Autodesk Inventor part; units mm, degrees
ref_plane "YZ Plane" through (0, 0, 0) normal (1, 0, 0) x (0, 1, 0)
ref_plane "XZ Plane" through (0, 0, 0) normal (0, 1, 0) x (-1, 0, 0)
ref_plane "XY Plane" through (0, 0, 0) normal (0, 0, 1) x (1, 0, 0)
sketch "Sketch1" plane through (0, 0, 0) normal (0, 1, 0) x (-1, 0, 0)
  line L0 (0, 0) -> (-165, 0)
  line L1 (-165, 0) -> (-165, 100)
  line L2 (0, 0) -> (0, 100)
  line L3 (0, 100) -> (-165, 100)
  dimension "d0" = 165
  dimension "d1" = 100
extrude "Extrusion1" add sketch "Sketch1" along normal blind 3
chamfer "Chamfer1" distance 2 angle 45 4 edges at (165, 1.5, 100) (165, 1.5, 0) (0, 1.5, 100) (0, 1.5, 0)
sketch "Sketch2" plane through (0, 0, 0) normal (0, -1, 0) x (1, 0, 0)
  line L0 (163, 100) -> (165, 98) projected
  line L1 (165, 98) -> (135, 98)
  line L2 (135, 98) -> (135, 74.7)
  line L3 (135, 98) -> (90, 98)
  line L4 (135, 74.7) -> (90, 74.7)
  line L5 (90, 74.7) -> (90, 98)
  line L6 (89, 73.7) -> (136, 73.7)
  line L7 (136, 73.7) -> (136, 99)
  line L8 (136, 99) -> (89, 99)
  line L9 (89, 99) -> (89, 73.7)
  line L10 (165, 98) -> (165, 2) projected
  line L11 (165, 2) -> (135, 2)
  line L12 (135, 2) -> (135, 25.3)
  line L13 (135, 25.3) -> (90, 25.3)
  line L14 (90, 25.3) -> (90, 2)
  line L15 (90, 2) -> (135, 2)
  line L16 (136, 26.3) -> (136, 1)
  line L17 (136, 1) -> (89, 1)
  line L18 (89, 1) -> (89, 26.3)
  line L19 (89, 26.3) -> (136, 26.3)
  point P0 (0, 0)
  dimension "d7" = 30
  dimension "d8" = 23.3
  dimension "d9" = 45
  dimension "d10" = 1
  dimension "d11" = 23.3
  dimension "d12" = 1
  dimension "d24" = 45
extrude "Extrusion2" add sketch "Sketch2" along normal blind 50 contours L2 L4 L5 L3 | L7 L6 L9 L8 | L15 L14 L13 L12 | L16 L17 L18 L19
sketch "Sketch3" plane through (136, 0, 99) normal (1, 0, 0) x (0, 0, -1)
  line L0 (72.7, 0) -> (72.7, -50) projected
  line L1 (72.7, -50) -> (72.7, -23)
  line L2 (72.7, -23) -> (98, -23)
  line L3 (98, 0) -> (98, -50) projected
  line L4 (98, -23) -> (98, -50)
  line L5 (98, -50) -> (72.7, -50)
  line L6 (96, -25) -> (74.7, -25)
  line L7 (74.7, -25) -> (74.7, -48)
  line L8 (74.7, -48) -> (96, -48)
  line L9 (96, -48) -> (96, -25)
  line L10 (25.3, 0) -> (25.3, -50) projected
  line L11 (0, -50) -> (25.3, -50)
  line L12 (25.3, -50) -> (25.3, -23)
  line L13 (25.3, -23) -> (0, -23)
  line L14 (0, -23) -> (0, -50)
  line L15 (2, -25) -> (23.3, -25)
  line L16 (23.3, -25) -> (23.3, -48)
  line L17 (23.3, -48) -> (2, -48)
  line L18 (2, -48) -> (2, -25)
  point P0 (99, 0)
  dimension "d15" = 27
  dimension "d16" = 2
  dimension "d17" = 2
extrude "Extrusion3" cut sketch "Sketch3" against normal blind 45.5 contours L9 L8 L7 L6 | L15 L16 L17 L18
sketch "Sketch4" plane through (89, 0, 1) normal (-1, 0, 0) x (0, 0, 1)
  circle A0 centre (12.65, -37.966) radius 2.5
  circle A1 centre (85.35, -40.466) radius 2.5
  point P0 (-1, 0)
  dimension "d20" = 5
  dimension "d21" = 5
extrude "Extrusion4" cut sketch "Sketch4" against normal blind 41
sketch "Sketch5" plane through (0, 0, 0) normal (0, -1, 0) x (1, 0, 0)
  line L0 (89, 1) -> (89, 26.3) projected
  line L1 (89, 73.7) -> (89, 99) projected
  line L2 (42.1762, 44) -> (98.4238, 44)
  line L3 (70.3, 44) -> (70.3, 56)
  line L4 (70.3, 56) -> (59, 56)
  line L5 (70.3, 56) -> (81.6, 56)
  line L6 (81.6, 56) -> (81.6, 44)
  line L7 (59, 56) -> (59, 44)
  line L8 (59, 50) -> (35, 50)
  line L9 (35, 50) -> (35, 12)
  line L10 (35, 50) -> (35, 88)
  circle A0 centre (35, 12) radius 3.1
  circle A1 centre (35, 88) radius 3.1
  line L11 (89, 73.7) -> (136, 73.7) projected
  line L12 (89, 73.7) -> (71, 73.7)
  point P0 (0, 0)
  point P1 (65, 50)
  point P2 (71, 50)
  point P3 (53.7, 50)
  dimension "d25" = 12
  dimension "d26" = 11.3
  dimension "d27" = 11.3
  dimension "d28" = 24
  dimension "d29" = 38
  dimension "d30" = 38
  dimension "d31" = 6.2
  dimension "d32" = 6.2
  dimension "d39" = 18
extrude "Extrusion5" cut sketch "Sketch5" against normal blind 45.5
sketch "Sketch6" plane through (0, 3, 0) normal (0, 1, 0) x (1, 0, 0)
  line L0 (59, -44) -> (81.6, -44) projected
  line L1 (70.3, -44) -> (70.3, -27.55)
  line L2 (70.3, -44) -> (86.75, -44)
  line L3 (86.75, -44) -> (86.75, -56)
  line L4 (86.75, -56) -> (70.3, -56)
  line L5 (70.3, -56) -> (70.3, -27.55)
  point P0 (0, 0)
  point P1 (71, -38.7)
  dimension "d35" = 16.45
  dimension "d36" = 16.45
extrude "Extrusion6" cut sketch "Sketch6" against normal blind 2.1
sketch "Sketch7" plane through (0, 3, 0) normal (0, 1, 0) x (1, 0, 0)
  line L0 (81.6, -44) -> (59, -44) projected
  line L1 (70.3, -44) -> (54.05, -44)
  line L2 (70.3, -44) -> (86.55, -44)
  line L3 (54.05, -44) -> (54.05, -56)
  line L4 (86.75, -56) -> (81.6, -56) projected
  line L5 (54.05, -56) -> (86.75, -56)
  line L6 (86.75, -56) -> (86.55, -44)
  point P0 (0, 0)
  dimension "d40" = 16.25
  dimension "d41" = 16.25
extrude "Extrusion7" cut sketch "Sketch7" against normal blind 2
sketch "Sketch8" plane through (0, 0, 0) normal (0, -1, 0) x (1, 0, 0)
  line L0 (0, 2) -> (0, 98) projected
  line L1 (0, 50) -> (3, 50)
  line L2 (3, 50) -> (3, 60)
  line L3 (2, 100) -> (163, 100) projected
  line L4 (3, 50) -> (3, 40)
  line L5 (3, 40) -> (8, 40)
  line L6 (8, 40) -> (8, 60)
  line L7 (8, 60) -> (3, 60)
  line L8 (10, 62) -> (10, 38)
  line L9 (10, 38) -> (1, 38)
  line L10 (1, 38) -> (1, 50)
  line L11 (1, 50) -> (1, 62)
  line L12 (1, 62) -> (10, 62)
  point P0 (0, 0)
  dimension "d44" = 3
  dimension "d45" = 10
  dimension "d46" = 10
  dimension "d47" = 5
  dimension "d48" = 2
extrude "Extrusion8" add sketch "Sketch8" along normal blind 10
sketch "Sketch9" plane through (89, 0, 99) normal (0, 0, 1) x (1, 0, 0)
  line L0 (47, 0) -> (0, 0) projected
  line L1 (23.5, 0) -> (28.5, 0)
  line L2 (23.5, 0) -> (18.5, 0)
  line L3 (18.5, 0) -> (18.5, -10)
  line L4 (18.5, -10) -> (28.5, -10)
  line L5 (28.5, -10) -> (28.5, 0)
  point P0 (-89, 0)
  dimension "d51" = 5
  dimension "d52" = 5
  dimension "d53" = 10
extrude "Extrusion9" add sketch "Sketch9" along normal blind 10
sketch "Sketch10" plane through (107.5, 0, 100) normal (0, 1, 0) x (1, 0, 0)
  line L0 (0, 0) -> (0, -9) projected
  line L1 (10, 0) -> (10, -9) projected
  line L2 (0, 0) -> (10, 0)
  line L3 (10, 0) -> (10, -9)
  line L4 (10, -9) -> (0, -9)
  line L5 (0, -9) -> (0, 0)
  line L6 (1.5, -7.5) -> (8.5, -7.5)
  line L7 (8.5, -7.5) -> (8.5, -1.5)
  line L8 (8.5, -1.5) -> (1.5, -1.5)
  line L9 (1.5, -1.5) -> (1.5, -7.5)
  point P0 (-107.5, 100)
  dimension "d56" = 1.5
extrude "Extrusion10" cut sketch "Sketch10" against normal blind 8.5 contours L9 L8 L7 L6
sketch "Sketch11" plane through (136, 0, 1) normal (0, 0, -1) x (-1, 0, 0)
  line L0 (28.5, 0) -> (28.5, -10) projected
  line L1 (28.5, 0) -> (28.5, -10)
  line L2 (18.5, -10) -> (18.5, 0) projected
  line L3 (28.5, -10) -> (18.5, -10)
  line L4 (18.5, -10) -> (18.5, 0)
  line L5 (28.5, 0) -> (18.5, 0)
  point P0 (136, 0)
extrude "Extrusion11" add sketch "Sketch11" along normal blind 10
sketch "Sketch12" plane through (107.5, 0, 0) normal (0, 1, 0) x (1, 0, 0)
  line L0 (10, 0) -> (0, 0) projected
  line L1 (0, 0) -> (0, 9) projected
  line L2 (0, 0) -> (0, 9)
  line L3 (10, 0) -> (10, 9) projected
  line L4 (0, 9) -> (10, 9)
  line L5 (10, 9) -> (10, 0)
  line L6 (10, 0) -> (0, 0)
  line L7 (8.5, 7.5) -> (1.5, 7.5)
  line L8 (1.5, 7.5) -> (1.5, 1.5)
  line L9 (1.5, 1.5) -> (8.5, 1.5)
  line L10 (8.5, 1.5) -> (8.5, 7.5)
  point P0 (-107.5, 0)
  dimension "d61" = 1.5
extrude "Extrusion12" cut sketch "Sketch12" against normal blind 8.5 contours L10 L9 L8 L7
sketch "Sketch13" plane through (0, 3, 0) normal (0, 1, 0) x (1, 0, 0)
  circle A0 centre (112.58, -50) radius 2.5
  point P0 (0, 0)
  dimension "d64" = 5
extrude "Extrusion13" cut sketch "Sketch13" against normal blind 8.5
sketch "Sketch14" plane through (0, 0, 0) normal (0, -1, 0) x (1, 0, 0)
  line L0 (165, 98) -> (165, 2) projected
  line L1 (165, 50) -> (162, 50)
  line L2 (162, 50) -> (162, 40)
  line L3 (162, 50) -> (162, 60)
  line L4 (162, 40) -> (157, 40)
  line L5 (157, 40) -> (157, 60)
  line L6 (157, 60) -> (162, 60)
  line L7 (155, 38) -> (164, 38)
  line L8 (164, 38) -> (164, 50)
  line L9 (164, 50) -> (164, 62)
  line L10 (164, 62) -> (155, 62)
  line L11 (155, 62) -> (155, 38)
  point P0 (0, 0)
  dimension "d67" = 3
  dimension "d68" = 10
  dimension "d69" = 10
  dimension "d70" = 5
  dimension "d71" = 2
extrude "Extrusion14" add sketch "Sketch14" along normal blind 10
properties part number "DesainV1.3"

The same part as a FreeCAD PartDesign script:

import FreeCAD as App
import Part
import Sketcher
from FreeCAD import Vector
Q = App.Units.Quantity


def edges_at(feature, points):
    """Names of the edges that pass closest to the given points."""
    edges = feature.Shape.Edges
    near = lambda p: min(range(len(edges)), key=lambda i: edges[i].distToShape(Part.Vertex(*p))[0])
    return sorted({f"Edge{near(p) + 1}" for p in points})

doc = App.newDocument("Part")
params = doc.addObject("Spreadsheet::Sheet", "Params")
for row, (alias, value) in enumerate([
    ("sketch1_width", "165 mm"),
    ("sketch1_height", "100 mm"),
    ("pad1_length", "3 mm"),
    ("chamfer_size", "2 mm"),
    ("sketch2_height", "1 mm"),
    ("sketch2_width", "47 mm"),
    ("sketch2_height2", "24.3 mm"),
    ("pad2_length", "50 mm"),
    ("sketch3_width", "23 mm"),
    ("sketch3_height", "21.3 mm"),
    ("pocket1_length", "45.5 mm"),
    ("sketch4_diameter", "5 mm"),
    ("pocket2_length", "41 mm"),
    ("sketch5_diameter", "6.2 mm"),
    ("sketch5_height", "12 mm"),
    ("sketch5_width", "22.6 mm"),
    ("pocket3_length", "45.5 mm"),
    ("sketch6_width", "16.45 mm"),
    ("sketch6_height", "12 mm"),
    ("pocket4_length", "2.1 mm"),
    ("sketch7_height", "12 mm"),
    ("sketch7_width", "32.5 mm"),
    ("sketch7_width2", "32.7 mm"),
    ("pocket5_length", "2 mm"),
    ("sketch8_width", "5 mm"),
    ("sketch8_height", "10 mm"),
    ("pad3_length", "10 mm"),
    ("sketch9_width", "10 mm"),
    ("pad4_length", "10 mm"),
    ("sketch10_width", "7 mm"),
    ("sketch10_height", "6 mm"),
    ("pocket6_length", "8.5 mm"),
    ("sketch11_width", "10 mm"),
    ("pad5_length", "10 mm"),
    ("sketch12_width", "7 mm"),
    ("sketch12_height", "6 mm"),
    ("pocket7_length", "8.5 mm"),
    ("sketch13_diameter", "5 mm"),
    ("pocket8_length", "8.5 mm"),
    ("sketch14_width", "5 mm"),
    ("sketch14_height", "10 mm"),
    ("pad6_length", "10 mm"),
], start=1):
    params.set(f"A{row}", alias)
    params.set(f"B{row}", "=" + value)
    params.setAlias(f"B{row}", alias)

body = doc.addObject("PartDesign::Body", "Body")

# Sketch on XZ plane
sketch1 = body.newObject("Sketcher::SketchObject", "Sketch")
sketch1.AttachmentSupport = (doc.getObject("XZ_Plane"), [""])
sketch1.MapMode = "FlatFace"
sketch1.addGeometry(Part.LineSegment(Vector(165, 0, 0), Vector(0, 0, 0)), False)
sketch1.addGeometry(Part.LineSegment(Vector(0, 0, 0), Vector(0, 100, 0)), False)
sketch1.addGeometry(Part.LineSegment(Vector(0, 100, 0), Vector(165, 100, 0)), False)
sketch1.addGeometry(Part.LineSegment(Vector(165, 100, 0), Vector(165, 0, 0)), False)
sketch1.addConstraint(Sketcher.Constraint("Coincident", 0, 2, 1, 1))
sketch1.addConstraint(Sketcher.Constraint("Coincident", 1, 2, 2, 1))
sketch1.addConstraint(Sketcher.Constraint("Coincident", 2, 2, 3, 1))
sketch1.addConstraint(Sketcher.Constraint("Coincident", 3, 2, 0, 1))
sketch1.addConstraint(Sketcher.Constraint("Horizontal", 0))
sketch1.addConstraint(Sketcher.Constraint("Vertical", 1))
sketch1.addConstraint(Sketcher.Constraint("Horizontal", 2))
sketch1.addConstraint(Sketcher.Constraint("Vertical", 3))
sketch1.addConstraint(Sketcher.Constraint("Coincident", 0, 2, -1, 1))
sketch1.addConstraint(Sketcher.Constraint("DistanceX", 0, 2, 0, 1, Q("165 mm")))
sketch1.addConstraint(Sketcher.Constraint("DistanceY", 1, 1, 1, 2, Q("100 mm")))
sketch1.setExpression("Constraints[9]", "Params.sketch1_width")
sketch1.setExpression("Constraints[10]", "Params.sketch1_height")
pad1 = body.newObject("PartDesign::Pad", "Pad")
pad1.Profile = sketch1
pad1.setExpression("Length", "Params.pad1_length")
pad1.Reversed = True
doc.recompute()

chamfer = body.newObject("PartDesign::Chamfer", "Chamfer")
chamfer.Base = (pad1, edges_at(pad1, [
    (165, 1.5, 100),
    (165, 1.5, 0),
    (0, 1.5, 100),
    (0, 1.5, 0),
]))
chamfer.setExpression("Size", "Params.chamfer_size")

# Sketch on XZ plane
sketch2 = body.newObject("Sketcher::SketchObject", "Sketch001")
sketch2.AttachmentSupport = (doc.getObject("XZ_Plane"), [""])
sketch2.MapMode = "FlatFace"
sketch2.addGeometry(Part.LineSegment(Vector(136, 73.7, 0), Vector(136, 98, 0)), False)
sketch2.addGeometry(Part.LineSegment(Vector(136, 98, 0), Vector(136, 99, 0)), False)
sketch2.addGeometry(Part.LineSegment(Vector(136, 99, 0), Vector(89, 99, 0)), False)
sketch2.addGeometry(Part.LineSegment(Vector(89, 99, 0), Vector(89, 73.7, 0)), False)
sketch2.addGeometry(Part.LineSegment(Vector(89, 73.7, 0), Vector(136, 73.7, 0)), False)
sketch2.addGeometry(Part.LineSegment(Vector(136, 1, 0), Vector(136, 2, 0)), False)
sketch2.addGeometry(Part.LineSegment(Vector(136, 2, 0), Vector(136, 26.3, 0)), False)
sketch2.addGeometry(Part.LineSegment(Vector(136, 26.3, 0), Vector(89, 26.3, 0)), False)
sketch2.addGeometry(Part.LineSegment(Vector(89, 26.3, 0), Vector(89, 1, 0)), False)
sketch2.addGeometry(Part.LineSegment(Vector(89, 1, 0), Vector(136, 1, 0)), False)
sketch2.addConstraint(Sketcher.Constraint("Coincident", 0, 2, 1, 1))
sketch2.addConstraint(Sketcher.Constraint("Coincident", 1, 2, 2, 1))
sketch2.addConstraint(Sketcher.Constraint("Coincident", 2, 2, 3, 1))
sketch2.addConstraint(Sketcher.Constraint("Coincident", 3, 2, 4, 1))
sketch2.addConstraint(Sketcher.Constraint("Coincident", 4, 2, 0, 1))
sketch2.addConstraint(Sketcher.Constraint("Coincident", 5, 2, 6, 1))
sketch2.addConstraint(Sketcher.Constraint("Coincident", 6, 2, 7, 1))
sketch2.addConstraint(Sketcher.Constraint("Coincident", 7, 2, 8, 1))
sketch2.addConstraint(Sketcher.Constraint("Coincident", 8, 2, 9, 1))
sketch2.addConstraint(Sketcher.Constraint("Coincident", 9, 2, 5, 1))
sketch2.addConstraint(Sketcher.Constraint("Vertical", 0))
sketch2.addConstraint(Sketcher.Constraint("Vertical", 1))
sketch2.addConstraint(Sketcher.Constraint("Horizontal", 2))
sketch2.addConstraint(Sketcher.Constraint("Vertical", 3))
sketch2.addConstraint(Sketcher.Constraint("Horizontal", 4))
sketch2.addConstraint(Sketcher.Constraint("Vertical", 5))
sketch2.addConstraint(Sketcher.Constraint("Vertical", 6))
sketch2.addConstraint(Sketcher.Constraint("Horizontal", 7))
sketch2.addConstraint(Sketcher.Constraint("Vertical", 8))
sketch2.addConstraint(Sketcher.Constraint("Horizontal", 9))
sketch2.addConstraint(Sketcher.Constraint("Vertical", 4, 2, 5, 2))
sketch2.addConstraint(Sketcher.Constraint("Vertical", 3, 2, 7, 2))
sketch2.addConstraint(Sketcher.Constraint("Equal", 1, 5))
sketch2.addConstraint(Sketcher.Constraint("Equal", 0, 6))
sketch2.addConstraint(Sketcher.Constraint("DistanceY", 1, 1, 1, 2, Q("1 mm")))
sketch2.addConstraint(Sketcher.Constraint("DistanceY", -1, 1, 8, 2, Q("1 mm")))
sketch2.addConstraint(Sketcher.Constraint("DistanceX", 2, 2, 2, 1, Q("47 mm")))
sketch2.addConstraint(Sketcher.Constraint("DistanceY", 0, 1, 0, 2, Q("24.3 mm")))
sketch2.addConstraint(Sketcher.Constraint("DistanceX", -1, 1, 0, 2, Q("136 mm")))
sketch2.addConstraint(Sketcher.Constraint("DistanceY", -1, 1, 0, 2, Q("98 mm")))
sketch2.setExpression("Constraints[24]", "Params.sketch2_height")
sketch2.setExpression("Constraints[26]", "Params.sketch2_width")
sketch2.setExpression("Constraints[27]", "Params.sketch2_height2")
pad2 = body.newObject("PartDesign::Pad", "Pad001")
pad2.Profile = sketch2
pad2.setExpression("Length", "Params.pad2_length")

# Sketch on YZ plane
sketch3 = body.newObject("Sketcher::SketchObject", "Sketch002")
sketch3.AttachmentSupport = (doc.getObject("YZ_Plane"), [""])
sketch3.MapMode = "FlatFace"
sketch3.AttachmentOffset = App.Placement(Vector(0, 0, 136), App.Rotation())
sketch3.addGeometry(Part.LineSegment(Vector(-48, 3, 0), Vector(-25, 3, 0)), False)
sketch3.addGeometry(Part.LineSegment(Vector(-25, 3, 0), Vector(-25, 24, 0)), False)
sketch3.addGeometry(Part.LineSegment(Vector(-25, 24, 0), Vector(-48, 24, 0)), False)
sketch3.addGeometry(Part.LineSegment(Vector(-48, 24, 0), Vector(-48, 3, 0)), False)
sketch3.addGeometry(Part.LineSegment(Vector(-25, 76, 0), Vector(-25, 97, 0)), False)
sketch3.addGeometry(Part.LineSegment(Vector(-25, 97, 0), Vector(-48, 97, 0)), False)
sketch3.addGeometry(Part.LineSegment(Vector(-48, 97, 0), Vector(-48, 76, 0)), False)
sketch3.addGeometry(Part.LineSegment(Vector(-48, 76, 0), Vector(-25, 76, 0)), False)
sketch3.addConstraint(Sketcher.Constraint("Coincident", 0, 2, 1, 1))
sketch3.addConstraint(Sketcher.Constraint("Coincident", 1, 2, 2, 1))
sketch3.addConstraint(Sketcher.Constraint("Coincident", 2, 2, 3, 1))
sketch3.addConstraint(Sketcher.Constraint("Coincident", 3, 2, 0, 1))
sketch3.addConstraint(Sketcher.Constraint("Coincident", 4, 2, 5, 1))
sketch3.addConstraint(Sketcher.Constraint("Coincident", 5, 2, 6, 1))
sketch3.addConstraint(Sketcher.Constraint("Coincident", 6, 2, 7, 1))
sketch3.addConstraint(Sketcher.Constraint("Coincident", 7, 2, 4, 1))
sketch3.addConstraint(Sketcher.Constraint("Horizontal", 0))
sketch3.addConstraint(Sketcher.Constraint("Vertical", 1))
sketch3.addConstraint(Sketcher.Constraint("Horizontal", 2))
sketch3.addConstraint(Sketcher.Constraint("Vertical", 3))
sketch3.addConstraint(Sketcher.Constraint("Vertical", 4))
sketch3.addConstraint(Sketcher.Constraint("Horizontal", 5))
sketch3.addConstraint(Sketcher.Constraint("Vertical", 6))
sketch3.addConstraint(Sketcher.Constraint("Horizontal", 7))
sketch3.addConstraint(Sketcher.Constraint("Vertical", 1, 2, 4, 2))
sketch3.addConstraint(Sketcher.Constraint("Vertical", 3, 2, 5, 2))
sketch3.addConstraint(Sketcher.Constraint("Equal", 3, 4))
sketch3.addConstraint(Sketcher.Constraint("DistanceX", 0, 1, 0, 2, Q("23 mm")))
sketch3.addConstraint(Sketcher.Constraint("DistanceY", 1, 1, 1, 2, Q("21.3 mm")))
sketch3.addConstraint(Sketcher.Constraint("DistanceX", 0, 2, -1, 1, Q("25 mm")))
sketch3.addConstraint(Sketcher.Constraint("DistanceY", -1, 1, 0, 2, Q("3 mm")))
sketch3.addConstraint(Sketcher.Constraint("DistanceY", -1, 1, 4, 2, Q("97 mm")))
sketch3.setExpression("Constraints[19]", "Params.sketch3_width")
sketch3.setExpression("Constraints[20]", "Params.sketch3_height")
pocket1 = body.newObject("PartDesign::Pocket", "Pocket")
pocket1.Profile = sketch3
pocket1.setExpression("Length", "Params.pocket1_length")

# Sketch on YZ plane
sketch4 = body.newObject("Sketcher::SketchObject", "Sketch003")
sketch4.AttachmentSupport = (doc.getObject("YZ_Plane"), [""])
sketch4.MapMode = "FlatFace"
sketch4.AttachmentOffset = App.Placement(Vector(0, 0, 89), App.Rotation())
sketch4.addGeometry(Part.Circle(Vector(-38, 13.7, 0), Vector(0, 0, 1), 2.5), False)
sketch4.addGeometry(Part.Circle(Vector(-40.5, 86.3, 0), Vector(0, 0, 1), 2.5), False)
sketch4.addConstraint(Sketcher.Constraint("Equal", 0, 1))
sketch4.addConstraint(Sketcher.Constraint("Diameter", 0, Q("5 mm")))
sketch4.addConstraint(Sketcher.Constraint("DistanceX", 1, 3, 0, 3, Q("2.5 mm")))
sketch4.addConstraint(Sketcher.Constraint("DistanceY", 0, 3, 1, 3, Q("72.7 mm")))
sketch4.addConstraint(Sketcher.Constraint("DistanceY", -1, 1, 0, 3, Q("13.65 mm")))
sketch4.addConstraint(Sketcher.Constraint("DistanceX", 0, 3, -1, 1, Q("37.966 mm")))
sketch4.setExpression("Constraints[1]", "Params.sketch4_diameter")
pocket2 = body.newObject("PartDesign::Pocket", "Pocket001")
pocket2.Profile = sketch4
pocket2.setExpression("Length", "Params.pocket2_length")
pocket2.Reversed = True

# Sketch on XZ plane
sketch5 = body.newObject("Sketcher::SketchObject", "Sketch004")
sketch5.AttachmentSupport = (doc.getObject("XZ_Plane"), [""])
sketch5.MapMode = "FlatFace"
sketch5.addGeometry(Part.LineSegment(Vector(59, 44, 0), Vector(81.6, 44, 0)), False)
sketch5.addGeometry(Part.LineSegment(Vector(81.6, 44, 0), Vector(81.6, 56, 0)), False)
sketch5.addGeometry(Part.LineSegment(Vector(81.6, 56, 0), Vector(59, 56, 0)), False)
sketch5.addGeometry(Part.LineSegment(Vector(59, 56, 0), Vector(59, 44, 0)), False)
sketch5.addGeometry(Part.Circle(Vector(35, 12, 0), Vector(0, 0, 1), 3.1), False)
sketch5.addGeometry(Part.Circle(Vector(35, 88, 0), Vector(0, 0, 1), 3.1), False)
sketch5.addConstraint(Sketcher.Constraint("Coincident", 0, 2, 1, 1))
sketch5.addConstraint(Sketcher.Constraint("Coincident", 1, 2, 2, 1))
sketch5.addConstraint(Sketcher.Constraint("Coincident", 2, 2, 3, 1))
sketch5.addConstraint(Sketcher.Constraint("Coincident", 3, 2, 0, 1))
sketch5.addConstraint(Sketcher.Constraint("Horizontal", 0))
sketch5.addConstraint(Sketcher.Constraint("Vertical", 1))
sketch5.addConstraint(Sketcher.Constraint("Horizontal", 2))
sketch5.addConstraint(Sketcher.Constraint("Vertical", 3))
sketch5.addConstraint(Sketcher.Constraint("Equal", 4, 5))
sketch5.addConstraint(Sketcher.Constraint("Vertical", 4, 3, 5, 3))
sketch5.addConstraint(Sketcher.Constraint("Diameter", 4, Q("6.2 mm")))
sketch5.addConstraint(Sketcher.Constraint("DistanceY", 1, 1, 1, 2, Q("12 mm")))
sketch5.addConstraint(Sketcher.Constraint("DistanceY", -1, 1, 4, 3, Q("12 mm")))
sketch5.addConstraint(Sketcher.Constraint("DistanceX", 5, 3, 2, 2, Q("24 mm")))
sketch5.addConstraint(Sketcher.Constraint("DistanceX", 0, 1, 0, 2, Q("22.6 mm")))
sketch5.addConstraint(Sketcher.Constraint("DistanceX", -1, 1, 4, 3, Q("35 mm")))
sketch5.addConstraint(Sketcher.Constraint("DistanceY", -1, 1, 5, 3, Q("88 mm")))
sketch5.addConstraint(Sketcher.Constraint("DistanceY", -1, 1, 0, 2, Q("44 mm")))
sketch5.setExpression("Constraints[10]", "Params.sketch5_diameter")
sketch5.setExpression("Constraints[11]", "Params.sketch5_height")
sketch5.setExpression("Constraints[14]", "Params.sketch5_width")
pocket3 = body.newObject("PartDesign::Pocket", "Pocket002")
pocket3.Profile = sketch5
pocket3.setExpression("Length", "Params.pocket3_length")

# Sketch on XZ plane
sketch6 = body.newObject("Sketcher::SketchObject", "Sketch005")
sketch6.AttachmentSupport = (doc.getObject("XZ_Plane"), [""])
sketch6.MapMode = "FlatFace"
sketch6.AttachmentOffset = App.Placement(Vector(0, 0, -3), App.Rotation())
sketch6.addGeometry(Part.LineSegment(Vector(87, 44, 0), Vector(70, 44, 0)), False)
sketch6.addGeometry(Part.LineSegment(Vector(70, 44, 0), Vector(70, 56, 0)), False)
sketch6.addGeometry(Part.LineSegment(Vector(70, 56, 0), Vector(87, 56, 0)), False)
sketch6.addGeometry(Part.LineSegment(Vector(87, 56, 0), Vector(87, 44, 0)), False)
sketch6.addConstraint(Sketcher.Constraint("Coincident", 0, 2, 1, 1))
sketch6.addConstraint(Sketcher.Constraint("Coincident", 1, 2, 2, 1))
sketch6.addConstraint(Sketcher.Constraint("Coincident", 2, 2, 3, 1))
sketch6.addConstraint(Sketcher.Constraint("Coincident", 3, 2, 0, 1))
sketch6.addConstraint(Sketcher.Constraint("Horizontal", 0))
sketch6.addConstraint(Sketcher.Constraint("Vertical", 1))
sketch6.addConstraint(Sketcher.Constraint("Horizontal", 2))
sketch6.addConstraint(Sketcher.Constraint("Vertical", 3))
sketch6.addConstraint(Sketcher.Constraint("DistanceX", 0, 2, 0, 1, Q("16.45 mm")))
sketch6.addConstraint(Sketcher.Constraint("DistanceY", 1, 1, 1, 2, Q("12 mm")))
sketch6.addConstraint(Sketcher.Constraint("DistanceY", -1, 1, 0, 2, Q("44 mm")))
sketch6.addConstraint(Sketcher.Constraint("DistanceX", -1, 1, 0, 2, Q("70.3 mm")))
sketch6.setExpression("Constraints[8]", "Params.sketch6_width")
sketch6.setExpression("Constraints[9]", "Params.sketch6_height")
pocket4 = body.newObject("PartDesign::Pocket", "Pocket003")
pocket4.Profile = sketch6
pocket4.setExpression("Length", "Params.pocket4_length")
pocket4.Reversed = True

# Sketch on XZ plane
sketch7 = body.newObject("Sketcher::SketchObject", "Sketch006")
sketch7.AttachmentSupport = (doc.getObject("XZ_Plane"), [""])
sketch7.MapMode = "FlatFace"
sketch7.AttachmentOffset = App.Placement(Vector(0, 0, -3), App.Rotation())
sketch7.addGeometry(Part.LineSegment(Vector(87, 44, 0), Vector(54, 44, 0)), False)
sketch7.addGeometry(Part.LineSegment(Vector(54, 44, 0), Vector(54, 56, 0)), False)
sketch7.addGeometry(Part.LineSegment(Vector(54, 56, 0), Vector(87, 56, 0)), False)
sketch7.addGeometry(Part.LineSegment(Vector(87, 56, 0), Vector(87, 44, 0)), False)
sketch7.addConstraint(Sketcher.Constraint("Coincident", 0, 2, 1, 1))
sketch7.addConstraint(Sketcher.Constraint("Coincident", 1, 2, 2, 1))
sketch7.addConstraint(Sketcher.Constraint("Coincident", 2, 2, 3, 1))
sketch7.addConstraint(Sketcher.Constraint("Coincident", 3, 2, 0, 1))
sketch7.addConstraint(Sketcher.Constraint("Horizontal", 0))
sketch7.addConstraint(Sketcher.Constraint("Vertical", 1))
sketch7.addConstraint(Sketcher.Constraint("Horizontal", 2))
sketch7.addConstraint(Sketcher.Constraint("DistanceY", 1, 1, 1, 2, Q("12 mm")))
sketch7.addConstraint(Sketcher.Constraint("DistanceX", 0, 2, 0, 1, Q("32.5 mm")))
sketch7.addConstraint(Sketcher.Constraint("DistanceX", 2, 1, 2, 2, Q("32.7 mm")))
sketch7.addConstraint(Sketcher.Constraint("DistanceY", -1, 1, 0, 2, Q("44 mm")))
sketch7.addConstraint(Sketcher.Constraint("DistanceX", -1, 1, 0, 2, Q("54.05 mm")))
sketch7.setExpression("Constraints[7]", "Params.sketch7_height")
sketch7.setExpression("Constraints[8]", "Params.sketch7_width")
sketch7.setExpression("Constraints[9]", "Params.sketch7_width2")
pocket5 = body.newObject("PartDesign::Pocket", "Pocket004")
pocket5.Profile = sketch7
pocket5.setExpression("Length", "Params.pocket5_length")
pocket5.Reversed = True

# Sketch on XZ plane
sketch8 = body.newObject("Sketcher::SketchObject", "Sketch007")
sketch8.AttachmentSupport = (doc.getObject("XZ_Plane"), [""])
sketch8.MapMode = "FlatFace"
sketch8.addGeometry(Part.LineSegment(Vector(1, 62, 0), Vector(1, 50, 0)), False)
sketch8.addGeometry(Part.LineSegment(Vector(1, 50, 0), Vector(1, 38, 0)), False)
sketch8.addGeometry(Part.LineSegment(Vector(1, 38, 0), Vector(10, 38, 0)), False)
sketch8.addGeometry(Part.LineSegment(Vector(10, 38, 0), Vector(10, 62, 0)), False)
sketch8.addGeometry(Part.LineSegment(Vector(10, 62, 0), Vector(1, 62, 0)), False)
sketch8.addGeometry(Part.LineSegment(Vector(3, 40, 0), Vector(3, 50, 0)), False)
sketch8.addGeometry(Part.LineSegment(Vector(3, 50, 0), Vector(3, 60, 0)), False)
sketch8.addGeometry(Part.LineSegment(Vector(3, 60, 0), Vector(8, 60, 0)), False)
sketch8.addGeometry(Part.LineSegment(Vector(8, 60, 0), Vector(8, 40, 0)), False)
sketch8.addGeometry(Part.LineSegment(Vector(8, 40, 0), Vector(3, 40, 0)), False)
sketch8.addConstraint(Sketcher.Constraint("Coincident", 0, 2, 1, 1))
sketch8.addConstraint(Sketcher.Constraint("Coincident", 1, 2, 2, 1))
sketch8.addConstraint(Sketcher.Constraint("Coincident", 2, 2, 3, 1))
sketch8.addConstraint(Sketcher.Constraint("Coincident", 3, 2, 4, 1))
sketch8.addConstraint(Sketcher.Constraint("Coincident", 4, 2, 0, 1))
sketch8.addConstraint(Sketcher.Constraint("Coincident", 5, 2, 6, 1))
sketch8.addConstraint(Sketcher.Constraint("Coincident", 6, 2, 7, 1))
sketch8.addConstraint(Sketcher.Constraint("Coincident", 7, 2, 8, 1))
sketch8.addConstraint(Sketcher.Constraint("Coincident", 8, 2, 9, 1))
sketch8.addConstraint(Sketcher.Constraint("Coincident", 9, 2, 5, 1))
sketch8.addConstraint(Sketcher.Constraint("Vertical", 0))
sketch8.addConstraint(Sketcher.Constraint("Vertical", 1))
sketch8.addConstraint(Sketcher.Constraint("Horizontal", 2))
sketch8.addConstraint(Sketcher.Constraint("Vertical", 3))
sketch8.addConstraint(Sketcher.Constraint("Horizontal", 4))
sketch8.addConstraint(Sketcher.Constraint("Vertical", 5))
sketch8.addConstraint(Sketcher.Constraint("Vertical", 6))
sketch8.addConstraint(Sketcher.Constraint("Horizontal", 7))
sketch8.addConstraint(Sketcher.Constraint("Vertical", 8))
sketch8.addConstraint(Sketcher.Constraint("Horizontal", 9))
sketch8.addConstraint(Sketcher.Constraint("Horizontal", 0, 2, 5, 2))
sketch8.addConstraint(Sketcher.Constraint("Equal", 0, 1))
sketch8.addConstraint(Sketcher.Constraint("Equal", 5, 6))
sketch8.addConstraint(Sketcher.Constraint("DistanceX", 7, 1, 7, 2, Q("5 mm")))
sketch8.addConstraint(Sketcher.Constraint("DistanceY", 5, 1, 5, 2, Q("10 mm")))
sketch8.addConstraint(Sketcher.Constraint("DistanceX", -1, 1, 2, 2, Q("10 mm")))
sketch8.addConstraint(Sketcher.Constraint("DistanceX", -1, 1, 5, 2, Q("3 mm")))
sketch8.addConstraint(Sketcher.Constraint("DistanceX", 0, 2, 5, 2, Q("2 mm")))
sketch8.addConstraint(Sketcher.Constraint("DistanceY", 6, 2, 4, 2, Q("2 mm")))
sketch8.addConstraint(Sketcher.Constraint("DistanceY", -1, 1, 0, 2, Q("50 mm")))
sketch8.setExpression("Constraints[23]", "Params.sketch8_width")
sketch8.setExpression("Constraints[24]", "Params.sketch8_height")
pad3 = body.newObject("PartDesign::Pad", "Pad002")
pad3.Profile = sketch8
pad3.setExpression("Length", "Params.pad3_length")

# Sketch on XY plane
sketch9 = body.newObject("Sketcher::SketchObject", "Sketch008")
sketch9.AttachmentSupport = (doc.getObject("XY_Plane"), [""])
sketch9.MapMode = "FlatFace"
sketch9.AttachmentOffset = App.Placement(Vector(0, 0, 99), App.Rotation())
sketch9.addGeometry(Part.LineSegment(Vector(118, -10, 0), Vector(118, 0, 0)), False)
sketch9.addGeometry(Part.LineSegment(Vector(118, 0, 0), Vector(108, 0, 0)), False)
sketch9.addGeometry(Part.LineSegment(Vector(108, 0, 0), Vector(108, -10, 0)), False)
sketch9.addGeometry(Part.LineSegment(Vector(108, -10, 0), Vector(118, -10, 0)), False)
sketch9.addConstraint(Sketcher.Constraint("Coincident", 0, 2, 1, 1))
sketch9.addConstraint(Sketcher.Constraint("Coincident", 1, 2, 2, 1))
sketch9.addConstraint(Sketcher.Constraint("Coincident", 2, 2, 3, 1))
sketch9.addConstraint(Sketcher.Constraint("Coincident", 3, 2, 0, 1))
sketch9.addConstraint(Sketcher.Constraint("Vertical", 0))
sketch9.addConstraint(Sketcher.Constraint("Horizontal", 1))
sketch9.addConstraint(Sketcher.Constraint("Vertical", 2))
sketch9.addConstraint(Sketcher.Constraint("Horizontal", 3))
sketch9.addConstraint(Sketcher.Constraint("PointOnObject", 0, 2, -1))
sketch9.addConstraint(Sketcher.Constraint("Equal", 3, 0))
sketch9.addConstraint(Sketcher.Constraint("DistanceX", 1, 2, 1, 1, Q("10 mm")))
sketch9.addConstraint(Sketcher.Constraint("DistanceX", -1, 1, 0, 2, Q("117.5 mm")))
sketch9.setExpression("Constraints[10]", "Params.sketch9_width")
pad4 = body.newObject("PartDesign::Pad", "Pad003")
pad4.Profile = sketch9
pad4.setExpression("Length", "Params.pad4_length")

# Sketch on XZ plane
sketch10 = body.newObject("Sketcher::SketchObject", "Sketch009")
sketch10.AttachmentSupport = (doc.getObject("XZ_Plane"), [""])
sketch10.MapMode = "FlatFace"
sketch10.addGeometry(Part.LineSegment(Vector(109, 102, 0), Vector(109, 108, 0)), False)
sketch10.addGeometry(Part.LineSegment(Vector(109, 108, 0), Vector(116, 108, 0)), False)
sketch10.addGeometry(Part.LineSegment(Vector(116, 108, 0), Vector(116, 102, 0)), False)
sketch10.addGeometry(Part.LineSegment(Vector(116, 102, 0), Vector(109, 102, 0)), False)
sketch10.addConstraint(Sketcher.Constraint("Coincident", 0, 2, 1, 1))
sketch10.addConstraint(Sketcher.Constraint("Coincident", 1, 2, 2, 1))
sketch10.addConstraint(Sketcher.Constraint("Coincident", 2, 2, 3, 1))
sketch10.addConstraint(Sketcher.Constraint("Coincident", 3, 2, 0, 1))
sketch10.addConstraint(Sketcher.Constraint("Vertical", 0))
sketch10.addConstraint(Sketcher.Constraint("Horizontal", 1))
sketch10.addConstraint(Sketcher.Constraint("Vertical", 2))
sketch10.addConstraint(Sketcher.Constraint("Horizontal", 3))
sketch10.addConstraint(Sketcher.Constraint("DistanceX", 1, 1, 1, 2, Q("7 mm")))
sketch10.addConstraint(Sketcher.Constraint("DistanceY", 0, 1, 0, 2, Q("6 mm")))
sketch10.addConstraint(Sketcher.Constraint("DistanceX", -1, 1, 0, 2, Q("109 mm")))
sketch10.addConstraint(Sketcher.Constraint("DistanceY", -1, 1, 0, 2, Q("107.5 mm")))
sketch10.setExpression("Constraints[8]", "Params.sketch10_width")
sketch10.setExpression("Constraints[9]", "Params.sketch10_height")
pocket6 = body.newObject("PartDesign::Pocket", "Pocket005")
pocket6.Profile = sketch10
pocket6.setExpression("Length", "Params.pocket6_length")
pocket6.Reversed = True

# Sketch on XY plane
sketch11 = body.newObject("Sketcher::SketchObject", "Sketch010")
sketch11.AttachmentSupport = (doc.getObject("XY_Plane"), [""])
sketch11.MapMode = "FlatFace"
sketch11.AttachmentOffset = App.Placement(Vector(0, 0, 1), App.Rotation())
sketch11.addGeometry(Part.LineSegment(Vector(108, -10, 0), Vector(108, 0, 0)), False)
sketch11.addGeometry(Part.LineSegment(Vector(108, 0, 0), Vector(118, 0, 0)), False)
sketch11.addGeometry(Part.LineSegment(Vector(118, 0, 0), Vector(118, -10, 0)), False)
sketch11.addGeometry(Part.LineSegment(Vector(118, -10, 0), Vector(108, -10, 0)), False)
sketch11.addConstraint(Sketcher.Constraint("Coincident", 0, 2, 1, 1))
sketch11.addConstraint(Sketcher.Constraint("Coincident", 1, 2, 2, 1))
sketch11.addConstraint(Sketcher.Constraint("Coincident", 2, 2, 3, 1))
sketch11.addConstraint(Sketcher.Constraint("Coincident", 3, 2, 0, 1))
sketch11.addConstraint(Sketcher.Constraint("Vertical", 0))
sketch11.addConstraint(Sketcher.Constraint("Horizontal", 1))
sketch11.addConstraint(Sketcher.Constraint("Vertical", 2))
sketch11.addConstraint(Sketcher.Constraint("Horizontal", 3))
sketch11.addConstraint(Sketcher.Constraint("PointOnObject", 0, 2, -1))
sketch11.addConstraint(Sketcher.Constraint("Equal", 3, 0))
sketch11.addConstraint(Sketcher.Constraint("DistanceX", 1, 1, 1, 2, Q("10 mm")))
sketch11.addConstraint(Sketcher.Constraint("DistanceX", -1, 1, 0, 2, Q("107.5 mm")))
sketch11.setExpression("Constraints[10]", "Params.sketch11_width")
pad5 = body.newObject("PartDesign::Pad", "Pad004")
pad5.Profile = sketch11
pad5.setExpression("Length", "Params.pad5_length")
pad5.Reversed = True

# Sketch on XZ plane
sketch12 = body.newObject("Sketcher::SketchObject", "Sketch011")
sketch12.AttachmentSupport = (doc.getObject("XZ_Plane"), [""])
sketch12.MapMode = "FlatFace"
sketch12.addGeometry(Part.LineSegment(Vector(116, -2, 0), Vector(116, -8, 0)), False)
sketch12.addGeometry(Part.LineSegment(Vector(116, -8, 0), Vector(109, -8, 0)), False)
sketch12.addGeometry(Part.LineSegment(Vector(109, -8, 0), Vector(109, -2, 0)), False)
sketch12.addGeometry(Part.LineSegment(Vector(109, -2, 0), Vector(116, -2, 0)), False)
sketch12.addConstraint(Sketcher.Constraint("Coincident", 0, 2, 1, 1))
sketch12.addConstraint(Sketcher.Constraint("Coincident", 1, 2, 2, 1))
sketch12.addConstraint(Sketcher.Constraint("Coincident", 2, 2, 3, 1))
sketch12.addConstraint(Sketcher.Constraint("Coincident", 3, 2, 0, 1))
sketch12.addConstraint(Sketcher.Constraint("Vertical", 0))
sketch12.addConstraint(Sketcher.Constraint("Horizontal", 1))
sketch12.addConstraint(Sketcher.Constraint("Vertical", 2))
sketch12.addConstraint(Sketcher.Constraint("Horizontal", 3))
sketch12.addConstraint(Sketcher.Constraint("DistanceY", 2, 2, -1, 1, Q("1.5 mm")))
sketch12.addConstraint(Sketcher.Constraint("DistanceX", 1, 2, 1, 1, Q("7 mm")))
sketch12.addConstraint(Sketcher.Constraint("DistanceY", 0, 2, 0, 1, Q("6 mm")))
sketch12.addConstraint(Sketcher.Constraint("DistanceX", -1, 1, 0, 2, Q("116 mm")))
sketch12.setExpression("Constraints[9]", "Params.sketch12_width")
sketch12.setExpression("Constraints[10]", "Params.sketch12_height")
pocket7 = body.newObject("PartDesign::Pocket", "Pocket006")
pocket7.Profile = sketch12
pocket7.setExpression("Length", "Params.pocket7_length")
pocket7.Reversed = True

# Sketch on XZ plane
sketch13 = body.newObject("Sketcher::SketchObject", "Sketch012")
sketch13.AttachmentSupport = (doc.getObject("XZ_Plane"), [""])
sketch13.MapMode = "FlatFace"
sketch13.AttachmentOffset = App.Placement(Vector(0, 0, -3), App.Rotation())
sketch13.addGeometry(Part.Circle(Vector(112.6, 50, 0), Vector(0, 0, 1), 2.5), False)
sketch13.addConstraint(Sketcher.Constraint("Diameter", 0, Q("5 mm")))
sketch13.addConstraint(Sketcher.Constraint("DistanceY", -1, 1, 0, 3, Q("50 mm")))
sketch13.addConstraint(Sketcher.Constraint("DistanceX", -1, 1, 0, 3, Q("112.58 mm")))
sketch13.setExpression("Constraints[0]", "Params.sketch13_diameter")
pocket8 = body.newObject("PartDesign::Pocket", "Pocket007")
pocket8.Profile = sketch13
pocket8.setExpression("Length", "Params.pocket8_length")
pocket8.Reversed = True

# Sketch on XZ plane
sketch14 = body.newObject("Sketcher::SketchObject", "Sketch013")
sketch14.AttachmentSupport = (doc.getObject("XZ_Plane"), [""])
sketch14.MapMode = "FlatFace"
sketch14.addGeometry(Part.LineSegment(Vector(164, 38, 0), Vector(164, 50, 0)), False)
sketch14.addGeometry(Part.LineSegment(Vector(164, 50, 0), Vector(164, 62, 0)), False)
sketch14.addGeometry(Part.LineSegment(Vector(164, 62, 0), Vector(155, 62, 0)), False)
sketch14.addGeometry(Part.LineSegment(Vector(155, 62, 0), Vector(155, 38, 0)), False)
sketch14.addGeometry(Part.LineSegment(Vector(155, 38, 0), Vector(164, 38, 0)), False)
sketch14.addGeometry(Part.LineSegment(Vector(162, 60, 0), Vector(162, 50, 0)), False)
sketch14.addGeometry(Part.LineSegment(Vector(162, 50, 0), Vector(162, 40, 0)), False)
sketch14.addGeometry(Part.LineSegment(Vector(162, 40, 0), Vector(157, 40, 0)), False)
sketch14.addGeometry(Part.LineSegment(Vector(157, 40, 0), Vector(157, 60, 0)), False)
sketch14.addGeometry(Part.LineSegment(Vector(157, 60, 0), Vector(162, 60, 0)), False)
sketch14.addConstraint(Sketcher.Constraint("Coincident", 0, 2, 1, 1))
sketch14.addConstraint(Sketcher.Constraint("Coincident", 1, 2, 2, 1))
sketch14.addConstraint(Sketcher.Constraint("Coincident", 2, 2, 3, 1))
sketch14.addConstraint(Sketcher.Constraint("Coincident", 3, 2, 4, 1))
sketch14.addConstraint(Sketcher.Constraint("Coincident", 4, 2, 0, 1))
sketch14.addConstraint(Sketcher.Constraint("Coincident", 5, 2, 6, 1))
sketch14.addConstraint(Sketcher.Constraint("Coincident", 6, 2, 7, 1))
sketch14.addConstraint(Sketcher.Constraint("Coincident", 7, 2, 8, 1))
sketch14.addConstraint(Sketcher.Constraint("Coincident", 8, 2, 9, 1))
sketch14.addConstraint(Sketcher.Constraint("Coincident", 9, 2, 5, 1))
sketch14.addConstraint(Sketcher.Constraint("Vertical", 0))
sketch14.addConstraint(Sketcher.Constraint("Vertical", 1))
sketch14.addConstraint(Sketcher.Constraint("Horizontal", 2))
sketch14.addConstraint(Sketcher.Constraint("Vertical", 3))
sketch14.addConstraint(Sketcher.Constraint("Horizontal", 4))
sketch14.addConstraint(Sketcher.Constraint("Vertical", 5))
sketch14.addConstraint(Sketcher.Constraint("Vertical", 6))
sketch14.addConstraint(Sketcher.Constraint("Horizontal", 7))
sketch14.addConstraint(Sketcher.Constraint("Vertical", 8))
sketch14.addConstraint(Sketcher.Constraint("Horizontal", 9))
sketch14.addConstraint(Sketcher.Constraint("Horizontal", 0, 2, 5, 2))
sketch14.addConstraint(Sketcher.Constraint("Equal", 0, 1))
sketch14.addConstraint(Sketcher.Constraint("Equal", 5, 6))
sketch14.addConstraint(Sketcher.Constraint("DistanceX", 7, 2, 7, 1, Q("5 mm")))
sketch14.addConstraint(Sketcher.Constraint("DistanceY", 5, 2, 5, 1, Q("10 mm")))
sketch14.addConstraint(Sketcher.Constraint("DistanceX", 5, 2, 0, 2, Q("2 mm")))
sketch14.addConstraint(Sketcher.Constraint("DistanceY", 4, 2, 6, 2, Q("2 mm")))
sketch14.addConstraint(Sketcher.Constraint("DistanceX", 3, 2, 7, 2, Q("2 mm")))
sketch14.addConstraint(Sketcher.Constraint("DistanceX", -1, 1, 0, 2, Q("164 mm")))
sketch14.addConstraint(Sketcher.Constraint("DistanceY", -1, 1, 0, 2, Q("50 mm")))
sketch14.setExpression("Constraints[23]", "Params.sketch14_width")
sketch14.setExpression("Constraints[24]", "Params.sketch14_height")
pad6 = body.newObject("PartDesign::Pad", "Pad005")
pad6.Profile = sketch14
pad6.setExpression("Length", "Params.pad6_length")

doc.recompute()
